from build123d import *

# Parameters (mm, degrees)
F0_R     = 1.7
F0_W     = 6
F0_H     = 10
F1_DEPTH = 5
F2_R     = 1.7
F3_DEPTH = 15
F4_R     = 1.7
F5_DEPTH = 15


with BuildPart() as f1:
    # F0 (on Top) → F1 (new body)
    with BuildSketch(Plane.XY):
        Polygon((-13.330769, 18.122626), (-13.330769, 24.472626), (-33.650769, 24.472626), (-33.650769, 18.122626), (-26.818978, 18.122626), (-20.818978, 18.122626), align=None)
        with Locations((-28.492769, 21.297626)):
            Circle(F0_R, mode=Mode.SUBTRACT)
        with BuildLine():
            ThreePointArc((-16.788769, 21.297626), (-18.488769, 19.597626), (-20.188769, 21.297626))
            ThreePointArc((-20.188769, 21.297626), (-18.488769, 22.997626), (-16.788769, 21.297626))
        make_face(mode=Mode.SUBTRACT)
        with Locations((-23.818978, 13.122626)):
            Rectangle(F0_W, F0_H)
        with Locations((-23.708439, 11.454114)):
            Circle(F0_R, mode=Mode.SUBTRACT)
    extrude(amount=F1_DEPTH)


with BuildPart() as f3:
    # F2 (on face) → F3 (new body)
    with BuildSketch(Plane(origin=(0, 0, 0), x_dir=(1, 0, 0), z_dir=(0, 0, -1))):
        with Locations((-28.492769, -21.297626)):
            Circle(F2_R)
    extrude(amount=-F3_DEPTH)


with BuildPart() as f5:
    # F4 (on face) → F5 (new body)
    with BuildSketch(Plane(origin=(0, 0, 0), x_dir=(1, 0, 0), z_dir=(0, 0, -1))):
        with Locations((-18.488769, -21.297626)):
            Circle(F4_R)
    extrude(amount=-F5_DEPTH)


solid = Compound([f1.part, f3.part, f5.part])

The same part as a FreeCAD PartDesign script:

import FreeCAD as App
import Part
import Sketcher

V = App.Vector

doc = App.newDocument("Part")
params = doc.addObject("Spreadsheet::Sheet", "Params")
for row, (alias, value) in enumerate([
    ("sketch1_diameter", "3.4 mm"),
    ("sketch1_width", "6 mm"),
    ("sketch1_height", "10 mm"),
    ("sketch1_width2", "20.32 mm"),
    ("sketch1_height2", "6.35 mm"),
    ("pad1_length", "5 mm"),
    ("sketch2_diameter", "3.4 mm"),
    ("pad2_length", "15 mm"),
    ("sketch3_diameter", "3.4 mm"),
    ("pad3_length", "15 mm"),
], start=1):
    params.set(f"A{row}", alias)
    params.set(f"B{row}", "=" + value)
    params.setAlias(f"B{row}", alias)

body = doc.addObject("PartDesign::Body", "Body")

# Sketch on XY plane
sketch1 = doc.addObject("Sketcher::SketchObject", "Sketch")
body.addObject(sketch1)
sketch1.AttachmentSupport = (doc.XY_Plane, [""])
sketch1.MapMode = "FlatFace"
sketch1.addGeometry([
    Part.LineSegment(V(-13.3, 18.1, 0), V(-13.3, 24.5, 0)),  # 0
    Part.LineSegment(V(-13.3, 24.5, 0), V(-33.7, 24.5, 0)),  # 1
    Part.LineSegment(V(-33.7, 24.5, 0), V(-33.7, 18.1, 0)),  # 2
    Part.LineSegment(V(-33.7, 18.1, 0), V(-26.8, 18.1, 0)),  # 3
    Part.LineSegment(V(-26.8, 18.1, 0), V(-26.8, 8.1, 0)),  # 4
    Part.LineSegment(V(-26.8, 8.1, 0), V(-20.8, 8.1, 0)),  # 5
    Part.LineSegment(V(-20.8, 8.1, 0), V(-20.8, 18.1, 0)),  # 6
    Part.LineSegment(V(-20.8, 18.1, 0), V(-13.3, 18.1, 0)),  # 7
    Part.Circle(V(-23.7, 11.5, 0), V(0, 0, 1), 1.7),  # 8
    Part.Circle(V(-28.5, 21.3, 0), V(0, 0, 1), 1.7),  # 9
    Part.Circle(V(-18.5, 21.3, 0), V(0, 0, 1), 1.7),  # 10
], False)
sketch1.addConstraint([
    Sketcher.Constraint("Coincident", 0, 2, 1, 1),
    Sketcher.Constraint("Coincident", 1, 2, 2, 1),
    Sketcher.Constraint("Coincident", 2, 2, 3, 1),
    Sketcher.Constraint("Coincident", 3, 2, 4, 1),
    Sketcher.Constraint("Coincident", 4, 2, 5, 1),
    Sketcher.Constraint("Coincident", 5, 2, 6, 1),
    Sketcher.Constraint("Coincident", 6, 2, 7, 1),
    Sketcher.Constraint("Coincident", 7, 2, 0, 1),
    Sketcher.Constraint("Vertical", 0),
    Sketcher.Constraint("Horizontal", 1),
    Sketcher.Constraint("Vertical", 2),
    Sketcher.Constraint("Horizontal", 3),
    Sketcher.Constraint("Vertical", 4),
    Sketcher.Constraint("Horizontal", 5),
    Sketcher.Constraint("Vertical", 6),
    Sketcher.Constraint("Horizontal", 7),
    Sketcher.Constraint("Equal", 8, 9),
    Sketcher.Constraint("Equal", 9, 10),
    Sketcher.Constraint("Horizontal", 9, 3, 10, 3),
    Sketcher.Constraint("Horizontal", 3, 2, 6, 2),
    Sketcher.Constraint("Diameter", 8, 3.4),
    Sketcher.Constraint("DistanceX", 5, 1, 5, 2, 6.0),
    Sketcher.Constraint("DistanceY", 4, 2, 4, 1, 10.0),
    Sketcher.Constraint("DistanceX", 1, 2, 1, 1, 20.32),
    Sketcher.Constraint("DistanceY", 0, 1, 0, 2, 6.35),
    Sketcher.Constraint("DistanceX", 9, 3, 10, 3, 10.004),
    Sketcher.Constraint("DistanceX", 10, 3, 0, 2, 5.158),
    Sketcher.Constraint("DistanceY", 10, 3, 0, 2, 3.175),
    Sketcher.Constraint("DistanceX", 3, 1, 3, 2, 6.831791),
    Sketcher.Constraint("DistanceX", 8, 3, -1, 1, 23.708439),
    Sketcher.Constraint("DistanceX", 9, 3, -1, 1, 28.492769),
    Sketcher.Constraint("DistanceY", 8, 3, 2, 2, 6.668512),
    Sketcher.Constraint("DistanceY", -1, 1, 8, 3, 11.454114),
])
sketch1.setExpression("Constraints[20]", "Params.sketch1_diameter")
sketch1.setExpression("Constraints[21]", "Params.sketch1_width")
sketch1.setExpression("Constraints[22]", "Params.sketch1_height")
sketch1.setExpression("Constraints[23]", "Params.sketch1_width2")
sketch1.setExpression("Constraints[24]", "Params.sketch1_height2")
pad1 = doc.addObject("PartDesign::Pad", "Pad")
body.addObject(pad1)
pad1.Profile = sketch1
pad1.setExpression("Length", "Params.pad1_length")
body2 = doc.addObject("PartDesign::Body", "Body001")

# Sketch on XY plane
sketch2 = doc.addObject("Sketcher::SketchObject", "Sketch001")
body2.addObject(sketch2)
sketch2.AttachmentSupport = (doc.getObject("XY_Plane001"), [""])
sketch2.MapMode = "FlatFace"
sketch2.addGeometry(Part.Circle(V(-28.5, 21.3, 0), V(0, 0, 1), 1.7), False)
sketch2.addConstraint([
    Sketcher.Constraint("Diameter", 0, 3.4),
    Sketcher.Constraint("DistanceX", 0, 3, -1, 1, 28.492769),
    Sketcher.Constraint("DistanceY", -1, 1, 0, 3, 21.297626),
])
sketch2.setExpression("Constraints[0]", "Params.sketch2_diameter")
pad2 = doc.addObject("PartDesign::Pad", "Pad001")
body2.addObject(pad2)
pad2.Profile = sketch2
pad2.setExpression("Length", "Params.pad2_length")
body3 = doc.addObject("PartDesign::Body", "Body002")

# Sketch on XY plane
sketch3 = doc.addObject("Sketcher::SketchObject", "Sketch002")
body3.addObject(sketch3)
sketch3.AttachmentSupport = (doc.getObject("XY_Plane002"), [""])
sketch3.MapMode = "FlatFace"
sketch3.addGeometry(Part.Circle(V(-18.5, 21.3, 0), V(0, 0, 1), 1.7), False)
sketch3.addConstraint([
    Sketcher.Constraint("Diameter", 0, 3.4),
    Sketcher.Constraint("DistanceX", 0, 3, -1, 1, 18.488769),
    Sketcher.Constraint("DistanceY", -1, 1, 0, 3, 21.297626),
])
sketch3.setExpression("Constraints[0]", "Params.sketch3_diameter")
pad3 = doc.addObject("PartDesign::Pad", "Pad002")
body3.addObject(pad3)
pad3.Profile = sketch3
pad3.setExpression("Length", "Params.pad3_length")

doc.recompute()
